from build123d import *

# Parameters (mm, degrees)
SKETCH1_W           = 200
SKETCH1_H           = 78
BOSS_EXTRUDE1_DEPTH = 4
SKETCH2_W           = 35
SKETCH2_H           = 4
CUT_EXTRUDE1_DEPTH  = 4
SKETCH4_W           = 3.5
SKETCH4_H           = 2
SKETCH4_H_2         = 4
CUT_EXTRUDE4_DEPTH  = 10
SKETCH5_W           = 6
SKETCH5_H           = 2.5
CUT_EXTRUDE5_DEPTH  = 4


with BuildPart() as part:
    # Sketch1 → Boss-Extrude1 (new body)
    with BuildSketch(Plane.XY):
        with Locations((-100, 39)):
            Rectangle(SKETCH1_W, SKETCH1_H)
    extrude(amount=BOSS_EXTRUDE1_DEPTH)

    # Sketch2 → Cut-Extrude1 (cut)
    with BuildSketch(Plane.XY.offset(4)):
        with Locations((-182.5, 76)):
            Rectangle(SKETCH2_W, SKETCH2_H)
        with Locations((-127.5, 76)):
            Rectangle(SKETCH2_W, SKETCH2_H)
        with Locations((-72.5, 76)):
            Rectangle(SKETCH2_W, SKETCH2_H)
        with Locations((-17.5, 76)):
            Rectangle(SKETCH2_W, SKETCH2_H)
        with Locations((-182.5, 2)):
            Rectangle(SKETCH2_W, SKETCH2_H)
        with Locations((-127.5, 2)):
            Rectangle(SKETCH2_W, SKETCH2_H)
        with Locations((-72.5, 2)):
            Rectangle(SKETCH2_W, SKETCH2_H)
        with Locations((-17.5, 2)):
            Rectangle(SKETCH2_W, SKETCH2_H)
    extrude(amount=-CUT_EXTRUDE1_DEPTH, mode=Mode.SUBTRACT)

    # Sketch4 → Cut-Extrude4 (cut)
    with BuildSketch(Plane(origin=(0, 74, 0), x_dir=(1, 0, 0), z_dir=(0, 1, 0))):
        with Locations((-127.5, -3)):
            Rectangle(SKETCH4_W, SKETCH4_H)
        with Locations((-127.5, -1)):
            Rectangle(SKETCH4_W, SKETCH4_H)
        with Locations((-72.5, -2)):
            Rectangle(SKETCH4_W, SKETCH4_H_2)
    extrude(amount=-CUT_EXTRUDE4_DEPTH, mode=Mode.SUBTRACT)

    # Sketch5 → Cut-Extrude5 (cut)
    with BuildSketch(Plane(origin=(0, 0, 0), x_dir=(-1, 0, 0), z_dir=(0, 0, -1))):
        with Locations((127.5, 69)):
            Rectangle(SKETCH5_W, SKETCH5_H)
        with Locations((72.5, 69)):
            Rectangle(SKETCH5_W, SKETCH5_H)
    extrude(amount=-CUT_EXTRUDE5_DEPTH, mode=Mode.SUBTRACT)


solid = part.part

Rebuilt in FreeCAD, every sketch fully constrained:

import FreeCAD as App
import Part
import Sketcher
from FreeCAD import Vector

doc = App.newDocument("Part")
params = doc.addObject("Spreadsheet::Sheet", "Params")
for row, (alias, value) in enumerate([
    ("sketch1_width", "200 mm"),
    ("sketch1_height", "78 mm"),
    ("pad1_length", "4 mm"),
    ("sketch2_width", "35 mm"),
    ("sketch2_height", "4 mm"),
    ("pocket1_length", "4 mm"),
    ("sketch3_height", "4 mm"),
    ("sketch3_width", "3.5 mm"),
    ("pocket2_length", "10 mm"),
    ("sketch4_width", "6 mm"),
    ("sketch4_height", "2.5 mm"),
    ("pocket3_length", "4 mm"),
], start=1):
    params.set(f"A{row}", alias)
    params.set(f"B{row}", "=" + value)
    params.setAlias(f"B{row}", alias)

body = doc.addObject("PartDesign::Body", "Body")

sketch1 = doc.addObject("Sketcher::SketchObject", "Sketch")
body.addObject(sketch1)
sketch1.AttachmentSupport = (doc.XY_Plane, [""])
sketch1.MapMode = "FlatFace"
sketch1.addGeometry(Part.LineSegment(Vector(-200, 78, 0), Vector(-200, 0, 0)), False)
sketch1.addGeometry(Part.LineSegment(Vector(-200, 0, 0), Vector(0, 0, 0)), False)
sketch1.addGeometry(Part.LineSegment(Vector(0, 0, 0), Vector(0, 78, 0)), False)
sketch1.addGeometry(Part.LineSegment(Vector(0, 78, 0), Vector(-200, 78, 0)), False)
sketch1.addConstraint(Sketcher.Constraint("Coincident", 0, 2, 1, 1))
sketch1.addConstraint(Sketcher.Constraint("Coincident", 1, 2, 2, 1))
sketch1.addConstraint(Sketcher.Constraint("Coincident", 2, 2, 3, 1))
sketch1.addConstraint(Sketcher.Constraint("Coincident", 3, 2, 0, 1))
sketch1.addConstraint(Sketcher.Constraint("Vertical", 0))
sketch1.addConstraint(Sketcher.Constraint("Horizontal", 1))
sketch1.addConstraint(Sketcher.Constraint("Vertical", 2))
sketch1.addConstraint(Sketcher.Constraint("Horizontal", 3))
sketch1.addConstraint(Sketcher.Constraint("Coincident", 1, 2, -1, 1))
sketch1.addConstraint(Sketcher.Constraint("DistanceX", 1, 1, 1, 2, 200.0))
sketch1.addConstraint(Sketcher.Constraint("DistanceY", 0, 2, 0, 1, 78.0))
sketch1.setExpression("Constraints[9]", "Params.sketch1_width")
sketch1.setExpression("Constraints[10]", "Params.sketch1_height")
pad1 = doc.addObject("PartDesign::Pad", "Pad")
body.addObject(pad1)
pad1.Profile = sketch1
pad1.setExpression("Length", "Params.pad1_length")

sketch2 = doc.addObject("Sketcher::SketchObject", "Sketch001")
body.addObject(sketch2)
sketch2.AttachmentSupport = (doc.XY_Plane, [""])
sketch2.MapMode = "FlatFace"
sketch2.AttachmentOffset = App.Placement(Vector(0, 0, 4), App.Rotation())
sketch2.addGeometry(Part.LineSegment(Vector(-200, 78, 0), Vector(-200, 74, 0)), False)
sketch2.addGeometry(Part.LineSegment(Vector(-200, 74, 0), Vector(-165, 74, 0)), False)
sketch2.addGeometry(Part.LineSegment(Vector(-165, 74, 0), Vector(-165, 78, 0)), False)
sketch2.addGeometry(Part.LineSegment(Vector(-165, 78, 0), Vector(-200, 78, 0)), False)
sketch2.addGeometry(Part.LineSegment(Vector(-145, 78, 0), Vector(-145, 74, 0)), False)
sketch2.addGeometry(Part.LineSegment(Vector(-145, 74, 0), Vector(-110, 74, 0)), False)
sketch2.addGeometry(Part.LineSegment(Vector(-110, 74, 0), Vector(-110, 78, 0)), False)
sketch2.addGeometry(Part.LineSegment(Vector(-110, 78, 0), Vector(-145, 78, 0)), False)
sketch2.addGeometry(Part.LineSegment(Vector(-90, 78, 0), Vector(-90, 74, 0)), False)
sketch2.addGeometry(Part.LineSegment(Vector(-90, 74, 0), Vector(-55, 74, 0)), False)
sketch2.addGeometry(Part.LineSegment(Vector(-55, 74, 0), Vector(-55, 78, 0)), False)
sketch2.addGeometry(Part.LineSegment(Vector(-55, 78, 0), Vector(-90, 78, 0)), False)
sketch2.addGeometry(Part.LineSegment(Vector(-35, 78, 0), Vector(-35, 74, 0)), False)
sketch2.addGeometry(Part.LineSegment(Vector(-35, 74, 0), Vector(0, 74, 0)), False)
sketch2.addGeometry(Part.LineSegment(Vector(0, 74, 0), Vector(0, 78, 0)), False)
sketch2.addGeometry(Part.LineSegment(Vector(0, 78, 0), Vector(-35, 78, 0)), False)
sketch2.addGeometry(Part.LineSegment(Vector(-200, 4, 0), Vector(-200, 0, 0)), False)
sketch2.addGeometry(Part.LineSegment(Vector(-200, 0, 0), Vector(-165, 0, 0)), False)
sketch2.addGeometry(Part.LineSegment(Vector(-165, 0, 0), Vector(-165, 4, 0)), False)
sketch2.addGeometry(Part.LineSegment(Vector(-165, 4, 0), Vector(-200, 4, 0)), False)
sketch2.addGeometry(Part.LineSegment(Vector(-145, 4, 0), Vector(-145, 0, 0)), False)
sketch2.addGeometry(Part.LineSegment(Vector(-145, 0, 0), Vector(-110, 0, 0)), False)
sketch2.addGeometry(Part.LineSegment(Vector(-110, 0, 0), Vector(-110, 4, 0)), False)
sketch2.addGeometry(Part.LineSegment(Vector(-110, 4, 0), Vector(-145, 4, 0)), False)
sketch2.addGeometry(Part.LineSegment(Vector(-90, 4, 0), Vector(-90, 0, 0)), False)
sketch2.addGeometry(Part.LineSegment(Vector(-90, 0, 0), Vector(-55, 0, 0)), False)
sketch2.addGeometry(Part.LineSegment(Vector(-55, 0, 0), Vector(-55, 4, 0)), False)
sketch2.addGeometry(Part.LineSegment(Vector(-55, 4, 0), Vector(-90, 4, 0)), False)
sketch2.addGeometry(Part.LineSegment(Vector(-35, 4, 0), Vector(-35, 0, 0)), False)
sketch2.addGeometry(Part.LineSegment(Vector(-35, 0, 0), Vector(0, 0, 0)), False)
sketch2.addGeometry(Part.LineSegment(Vector(0, 0, 0), Vector(0, 4, 0)), False)
sketch2.addGeometry(Part.LineSegment(Vector(0, 4, 0), Vector(-35, 4, 0)), False)
sketch2.addConstraint(Sketcher.Constraint("Coincident", 0, 2, 1, 1))
sketch2.addConstraint(Sketcher.Constraint("Coincident", 1, 2, 2, 1))
sketch2.addConstraint(Sketcher.Constraint("Coincident", 2, 2, 3, 1))
sketch2.addConstraint(Sketcher.Constraint("Coincident", 3, 2, 0, 1))
sketch2.addConstraint(Sketcher.Constraint("Coincident", 4, 2, 5, 1))
sketch2.addConstraint(Sketcher.Constraint("Coincident", 5, 2, 6, 1))
sketch2.addConstraint(Sketcher.Constraint("Coincident", 6, 2, 7, 1))
sketch2.addConstraint(Sketcher.Constraint("Coincident", 7, 2, 4, 1))
sketch2.addConstraint(Sketcher.Constraint("Coincident", 8, 2, 9, 1))
sketch2.addConstraint(Sketcher.Constraint("Coincident", 9, 2, 10, 1))
sketch2.addConstraint(Sketcher.Constraint("Coincident", 10, 2, 11, 1))
sketch2.addConstraint(Sketcher.Constraint("Coincident", 11, 2, 8, 1))
sketch2.addConstraint(Sketcher.Constraint("Coincident", 12, 2, 13, 1))
sketch2.addConstraint(Sketcher.Constraint("Coincident", 13, 2, 14, 1))
sketch2.addConstraint(Sketcher.Constraint("Coincident", 14, 2, 15, 1))
sketch2.addConstraint(Sketcher.Constraint("Coincident", 15, 2, 12, 1))
sketch2.addConstraint(Sketcher.Constraint("Coincident", 16, 2, 17, 1))
sketch2.addConstraint(Sketcher.Constraint("Coincident", 17, 2, 18, 1))
sketch2.addConstraint(Sketcher.Constraint("Coincident", 18, 2, 19, 1))
sketch2.addConstraint(Sketcher.Constraint("Coincident", 19, 2, 16, 1))
sketch2.addConstraint(Sketcher.Constraint("Coincident", 20, 2, 21, 1))
sketch2.addConstraint(Sketcher.Constraint("Coincident", 21, 2, 22, 1))
sketch2.addConstraint(Sketcher.Constraint("Coincident", 22, 2, 23, 1))
sketch2.addConstraint(Sketcher.Constraint("Coincident", 23, 2, 20, 1))
sketch2.addConstraint(Sketcher.Constraint("Coincident", 24, 2, 25, 1))
sketch2.addConstraint(Sketcher.Constraint("Coincident", 25, 2, 26, 1))
sketch2.addConstraint(Sketcher.Constraint("Coincident", 26, 2, 27, 1))
sketch2.addConstraint(Sketcher.Constraint("Coincident", 27, 2, 24, 1))
sketch2.addConstraint(Sketcher.Constraint("Coincident", 28, 2, 29, 1))
sketch2.addConstraint(Sketcher.Constraint("Coincident", 29, 2, 30, 1))
sketch2.addConstraint(Sketcher.Constraint("Coincident", 30, 2, 31, 1))
sketch2.addConstraint(Sketcher.Constraint("Coincident", 31, 2, 28, 1))
sketch2.addConstraint(Sketcher.Constraint("Vertical", 0))
sketch2.addConstraint(Sketcher.Constraint("Horizontal", 1))
sketch2.addConstraint(Sketcher.Constraint("Vertical", 2))
sketch2.addConstraint(Sketcher.Constraint("Horizontal", 3))
sketch2.addConstraint(Sketcher.Constraint("Vertical", 4))
sketch2.addConstraint(Sketcher.Constraint("Horizontal", 5))
sketch2.addConstraint(Sketcher.Constraint("Vertical", 6))
sketch2.addConstraint(Sketcher.Constraint("Horizontal", 7))
sketch2.addConstraint(Sketcher.Constraint("Vertical", 8))
sketch2.addConstraint(Sketcher.Constraint("Horizontal", 9))
sketch2.addConstraint(Sketcher.Constraint("Vertical", 10))
sketch2.addConstraint(Sketcher.Constraint("Horizontal", 11))
sketch2.addConstraint(Sketcher.Constraint("Vertical", 12))
sketch2.addConstraint(Sketcher.Constraint("Horizontal", 13))
sketch2.addConstraint(Sketcher.Constraint("Vertical", 14))
sketch2.addConstraint(Sketcher.Constraint("Horizontal", 15))
sketch2.addConstraint(Sketcher.Constraint("Vertical", 16))
sketch2.addConstraint(Sketcher.Constraint("Horizontal", 17))
sketch2.addConstraint(Sketcher.Constraint("Vertical", 18))
sketch2.addConstraint(Sketcher.Constraint("Horizontal", 19))
sketch2.addConstraint(Sketcher.Constraint("Vertical", 20))
sketch2.addConstraint(Sketcher.Constraint("Horizontal", 21))
sketch2.addConstraint(Sketcher.Constraint("Vertical", 22))
sketch2.addConstraint(Sketcher.Constraint("Horizontal", 23))
sketch2.addConstraint(Sketcher.Constraint("Vertical", 24))
sketch2.addConstraint(Sketcher.Constraint("Horizontal", 25))
sketch2.addConstraint(Sketcher.Constraint("Vertical", 26))
sketch2.addConstraint(Sketcher.Constraint("Horizontal", 27))
sketch2.addConstraint(Sketcher.Constraint("Vertical", 28))
sketch2.addConstraint(Sketcher.Constraint("Horizontal", 29))
sketch2.addConstraint(Sketcher.Constraint("Vertical", 30))
sketch2.addConstraint(Sketcher.Constraint("Horizontal", 31))
sketch2.addConstraint(Sketcher.Constraint("Coincident", 29, 2, -1, 1))
sketch2.addConstraint(Sketcher.Constraint("PointOnObject", 13, 2, -2))
sketch2.addConstraint(Sketcher.Constraint("PointOnObject", 16, 2, -1))
sketch2.addConstraint(Sketcher.Constraint("PointOnObject", 20, 2, -1))
sketch2.addConstraint(Sketcher.Constraint("PointOnObject", 24, 2, -1))
sketch2.addConstraint(Sketcher.Constraint("Horizontal", 1, 2, 4, 2))
sketch2.addConstraint(Sketcher.Constraint("Horizontal", 3, 2, 6, 2))
sketch2.addConstraint(Sketcher.Constraint("Horizontal", 5, 2, 8, 2))
sketch2.addConstraint(Sketcher.Constraint("Horizontal", 7, 2, 10, 2))
sketch2.addConstraint(Sketcher.Constraint("Horizontal", 9, 2, 12, 2))
sketch2.addConstraint(Sketcher.Constraint("Horizontal", 11, 2, 14, 2))
sketch2.addConstraint(Sketcher.Constraint("Horizontal", 19, 2, 22, 2))
sketch2.addConstraint(Sketcher.Constraint("Horizontal", 23, 2, 26, 2))
sketch2.addConstraint(Sketcher.Constraint("Horizontal", 27, 2, 30, 2))
sketch2.addConstraint(Sketcher.Constraint("Vertical", 3, 2, 16, 2))
sketch2.addConstraint(Sketcher.Constraint("Vertical", 2, 2, 17, 2))
sketch2.addConstraint(Sketcher.Constraint("Vertical", 7, 2, 20, 2))
sketch2.addConstraint(Sketcher.Constraint("Vertical", 6, 2, 21, 2))
sketch2.addConstraint(Sketcher.Constraint("Vertical", 11, 2, 24, 2))
sketch2.addConstraint(Sketcher.Constraint("Vertical", 10, 2, 25, 2))
sketch2.addConstraint(Sketcher.Constraint("Vertical", 15, 2, 28, 2))
sketch2.addConstraint(Sketcher.Constraint("Equal", 3, 5))
sketch2.addConstraint(Sketcher.Constraint("Equal", 7, 9))
sketch2.addConstraint(Sketcher.Constraint("Equal", 11, 13))
sketch2.addConstraint(Sketcher.Constraint("Equal", 14, 16))
sketch2.addConstraint(Sketcher.Constraint("DistanceX", 1, 1, 1, 2, 35.0))
sketch2.addConstraint(Sketcher.Constraint("DistanceY", 0, 2, 0, 1, 4.0))
sketch2.addConstraint(Sketcher.Constraint("DistanceX", 0, 2, -1, 1, 200.0))
sketch2.addConstraint(Sketcher.Constraint("DistanceY", -1, 1, 0, 2, 74.0))
sketch2.addConstraint(Sketcher.Constraint("DistanceX", 4, 2, -1, 1, 145.0))
sketch2.addConstraint(Sketcher.Constraint("DistanceX", 8, 2, -1, 1, 90.0))
sketch2.setExpression("Constraints[89]", "Params.sketch2_width")
sketch2.setExpression("Constraints[90]", "Params.sketch2_height")
pocket1 = doc.addObject("PartDesign::Pocket", "Pocket")
body.addObject(pocket1)
pocket1.Profile = sketch2
pocket1.setExpression("Length", "Params.pocket1_length")

sketch3 = doc.addObject("Sketcher::SketchObject", "Sketch002")
body.addObject(sketch3)
sketch3.AttachmentSupport = (doc.XZ_Plane, [""])
sketch3.MapMode = "FlatFace"
sketch3.AttachmentOffset = App.Placement(Vector(0, 0, -74), App.Rotation())
sketch3.addGeometry(Part.LineSegment(Vector(-129.25, 4, 0), Vector(-125.75, 4, 0)), False)
sketch3.addGeometry(Part.LineSegment(Vector(-125.75, 4, 0), Vector(-125.75, 0, 0)), False)
sketch3.addGeometry(Part.LineSegment(Vector(-125.75, 0, 0), Vector(-129.25, 0, 0)), False)
sketch3.addGeometry(Part.LineSegment(Vector(-129.25, 0, 0), Vector(-129.25, 4, 0)), False)
sketch3.addGeometry(Part.LineSegment(Vector(-74.25, 0, 0), Vector(-74.25, 4, 0)), False)
sketch3.addGeometry(Part.LineSegment(Vector(-74.25, 4, 0), Vector(-70.75, 4, 0)), False)
sketch3.addGeometry(Part.LineSegment(Vector(-70.75, 4, 0), Vector(-70.75, 0, 0)), False)
sketch3.addGeometry(Part.LineSegment(Vector(-70.75, 0, 0), Vector(-74.25, 0, 0)), False)
sketch3.addConstraint(Sketcher.Constraint("Coincident", 0, 2, 1, 1))
sketch3.addConstraint(Sketcher.Constraint("Coincident", 1, 2, 2, 1))
sketch3.addConstraint(Sketcher.Constraint("Coincident", 2, 2, 3, 1))
sketch3.addConstraint(Sketcher.Constraint("Coincident", 3, 2, 0, 1))
sketch3.addConstraint(Sketcher.Constraint("Coincident", 4, 2, 5, 1))
sketch3.addConstraint(Sketcher.Constraint("Coincident", 5, 2, 6, 1))
sketch3.addConstraint(Sketcher.Constraint("Coincident", 6, 2, 7, 1))
sketch3.addConstraint(Sketcher.Constraint("Coincident", 7, 2, 4, 1))
sketch3.addConstraint(Sketcher.Constraint("Horizontal", 0))
sketch3.addConstraint(Sketcher.Constraint("Vertical", 1))
sketch3.addConstraint(Sketcher.Constraint("Horizontal", 2))
sketch3.addConstraint(Sketcher.Constraint("Vertical", 3))
sketch3.addConstraint(Sketcher.Constraint("Vertical", 4))
sketch3.addConstraint(Sketcher.Constraint("Horizontal", 5))
sketch3.addConstraint(Sketcher.Constraint("Vertical", 6))
sketch3.addConstraint(Sketcher.Constraint("Horizontal", 7))
sketch3.addConstraint(Sketcher.Constraint("PointOnObject", 1, 2, -1))
sketch3.addConstraint(Sketcher.Constraint("PointOnObject", 6, 2, -1))
sketch3.addConstraint(Sketcher.Constraint("Horizontal", 3, 2, 4, 2))
sketch3.addConstraint(Sketcher.Constraint("Equal", 2, 5))
sketch3.addConstraint(Sketcher.Constraint("DistanceY", 1, 2, 1, 1, 4.0))
sketch3.addConstraint(Sketcher.Constraint("DistanceX", 0, 1, 0, 2, 3.5))
sketch3.addConstraint(Sketcher.Constraint("DistanceX", 3, 2, 4, 2, 55.0))
sketch3.addConstraint(Sketcher.Constraint("DistanceX", 0, 2, -1, 1, 125.75))
sketch3.setExpression("Constraints[20]", "Params.sketch3_height")
sketch3.setExpression("Constraints[21]", "Params.sketch3_width")
pocket2 = doc.addObject("PartDesign::Pocket", "Pocket001")
body.addObject(pocket2)
pocket2.Profile = sketch3
pocket2.setExpression("Length", "Params.pocket2_length")
pocket2.Reversed = True

sketch4 = doc.addObject("Sketcher::SketchObject", "Sketch003")
body.addObject(sketch4)
sketch4.AttachmentSupport = (doc.XY_Plane, [""])
sketch4.MapMode = "FlatFace"
sketch4.addGeometry(Part.LineSegment(Vector(-124.5, 70.25, 0), Vector(-124.5, 67.75, 0)), False)
sketch4.addGeometry(Part.LineSegment(Vector(-124.5, 67.75, 0), Vector(-130.5, 67.75, 0)), False)
sketch4.addGeometry(Part.LineSegment(Vector(-130.5, 67.75, 0), Vector(-130.5, 70.25, 0)), False)
sketch4.addGeometry(Part.LineSegment(Vector(-130.5, 70.25, 0), Vector(-124.5, 70.25, 0)), False)
sketch4.addGeometry(Part.LineSegment(Vector(-69.5, 70.25, 0), Vector(-69.5, 67.75, 0)), False)
sketch4.addGeometry(Part.LineSegment(Vector(-69.5, 67.75, 0), Vector(-75.5, 67.75, 0)), False)
sketch4.addGeometry(Part.LineSegment(Vector(-75.5, 67.75, 0), Vector(-75.5, 70.25, 0)), False)
sketch4.addGeometry(Part.LineSegment(Vector(-75.5, 70.25, 0), Vector(-69.5, 70.25, 0)), False)
sketch4.addConstraint(Sketcher.Constraint("Coincident", 0, 2, 1, 1))
sketch4.addConstraint(Sketcher.Constraint("Coincident", 1, 2, 2, 1))
sketch4.addConstraint(Sketcher.Constraint("Coincident", 2, 2, 3, 1))
sketch4.addConstraint(Sketcher.Constraint("Coincident", 3, 2, 0, 1))
sketch4.addConstraint(Sketcher.Constraint("Coincident", 4, 2, 5, 1))
sketch4.addConstraint(Sketcher.Constraint("Coincident", 5, 2, 6, 1))
sketch4.addConstraint(Sketcher.Constraint("Coincident", 6, 2, 7, 1))
sketch4.addConstraint(Sketcher.Constraint("Coincident", 7, 2, 4, 1))
sketch4.addConstraint(Sketcher.Constraint("Vertical", 0))
sketch4.addConstraint(Sketcher.Constraint("Horizontal", 1))
sketch4.addConstraint(Sketcher.Constraint("Vertical", 2))
sketch4.addConstraint(Sketcher.Constraint("Horizontal", 3))
sketch4.addConstraint(Sketcher.Constraint("Vertical", 4))
sketch4.addConstraint(Sketcher.Constraint("Horizontal", 5))
sketch4.addConstraint(Sketcher.Constraint("Vertical", 6))
sketch4.addConstraint(Sketcher.Constraint("Horizontal", 7))
sketch4.addConstraint(Sketcher.Constraint("Horizontal", 1, 2, 4, 2))
sketch4.addConstraint(Sketcher.Constraint("Horizontal", 3, 2, 6, 2))
sketch4.addConstraint(Sketcher.Constraint("Equal", 3, 5))
sketch4.addConstraint(Sketcher.Constraint("DistanceX", 1, 2, 1, 1, 6.0))
sketch4.addConstraint(Sketcher.Constraint("DistanceY", 0, 2, 0, 1, 2.5))
sketch4.addConstraint(Sketcher.Constraint("DistanceX", 0, 2, 4, 2, 55.0))
sketch4.addConstraint(Sketcher.Constraint("DistanceX", 0, 2, -1, 1, 124.5))
sketch4.addConstraint(Sketcher.Constraint("DistanceY", -1, 1, 0, 2, 67.75))
sketch4.setExpression("Constraints[19]", "Params.sketch4_width")
sketch4.setExpression("Constraints[20]", "Params.sketch4_height")
pocket3 = doc.addObject("PartDesign::Pocket", "Pocket002")
body.addObject(pocket3)
pocket3.Profile = sketch4
pocket3.setExpression("Length", "Params.pocket3_length")
pocket3.Reversed = True

doc.recompute()
